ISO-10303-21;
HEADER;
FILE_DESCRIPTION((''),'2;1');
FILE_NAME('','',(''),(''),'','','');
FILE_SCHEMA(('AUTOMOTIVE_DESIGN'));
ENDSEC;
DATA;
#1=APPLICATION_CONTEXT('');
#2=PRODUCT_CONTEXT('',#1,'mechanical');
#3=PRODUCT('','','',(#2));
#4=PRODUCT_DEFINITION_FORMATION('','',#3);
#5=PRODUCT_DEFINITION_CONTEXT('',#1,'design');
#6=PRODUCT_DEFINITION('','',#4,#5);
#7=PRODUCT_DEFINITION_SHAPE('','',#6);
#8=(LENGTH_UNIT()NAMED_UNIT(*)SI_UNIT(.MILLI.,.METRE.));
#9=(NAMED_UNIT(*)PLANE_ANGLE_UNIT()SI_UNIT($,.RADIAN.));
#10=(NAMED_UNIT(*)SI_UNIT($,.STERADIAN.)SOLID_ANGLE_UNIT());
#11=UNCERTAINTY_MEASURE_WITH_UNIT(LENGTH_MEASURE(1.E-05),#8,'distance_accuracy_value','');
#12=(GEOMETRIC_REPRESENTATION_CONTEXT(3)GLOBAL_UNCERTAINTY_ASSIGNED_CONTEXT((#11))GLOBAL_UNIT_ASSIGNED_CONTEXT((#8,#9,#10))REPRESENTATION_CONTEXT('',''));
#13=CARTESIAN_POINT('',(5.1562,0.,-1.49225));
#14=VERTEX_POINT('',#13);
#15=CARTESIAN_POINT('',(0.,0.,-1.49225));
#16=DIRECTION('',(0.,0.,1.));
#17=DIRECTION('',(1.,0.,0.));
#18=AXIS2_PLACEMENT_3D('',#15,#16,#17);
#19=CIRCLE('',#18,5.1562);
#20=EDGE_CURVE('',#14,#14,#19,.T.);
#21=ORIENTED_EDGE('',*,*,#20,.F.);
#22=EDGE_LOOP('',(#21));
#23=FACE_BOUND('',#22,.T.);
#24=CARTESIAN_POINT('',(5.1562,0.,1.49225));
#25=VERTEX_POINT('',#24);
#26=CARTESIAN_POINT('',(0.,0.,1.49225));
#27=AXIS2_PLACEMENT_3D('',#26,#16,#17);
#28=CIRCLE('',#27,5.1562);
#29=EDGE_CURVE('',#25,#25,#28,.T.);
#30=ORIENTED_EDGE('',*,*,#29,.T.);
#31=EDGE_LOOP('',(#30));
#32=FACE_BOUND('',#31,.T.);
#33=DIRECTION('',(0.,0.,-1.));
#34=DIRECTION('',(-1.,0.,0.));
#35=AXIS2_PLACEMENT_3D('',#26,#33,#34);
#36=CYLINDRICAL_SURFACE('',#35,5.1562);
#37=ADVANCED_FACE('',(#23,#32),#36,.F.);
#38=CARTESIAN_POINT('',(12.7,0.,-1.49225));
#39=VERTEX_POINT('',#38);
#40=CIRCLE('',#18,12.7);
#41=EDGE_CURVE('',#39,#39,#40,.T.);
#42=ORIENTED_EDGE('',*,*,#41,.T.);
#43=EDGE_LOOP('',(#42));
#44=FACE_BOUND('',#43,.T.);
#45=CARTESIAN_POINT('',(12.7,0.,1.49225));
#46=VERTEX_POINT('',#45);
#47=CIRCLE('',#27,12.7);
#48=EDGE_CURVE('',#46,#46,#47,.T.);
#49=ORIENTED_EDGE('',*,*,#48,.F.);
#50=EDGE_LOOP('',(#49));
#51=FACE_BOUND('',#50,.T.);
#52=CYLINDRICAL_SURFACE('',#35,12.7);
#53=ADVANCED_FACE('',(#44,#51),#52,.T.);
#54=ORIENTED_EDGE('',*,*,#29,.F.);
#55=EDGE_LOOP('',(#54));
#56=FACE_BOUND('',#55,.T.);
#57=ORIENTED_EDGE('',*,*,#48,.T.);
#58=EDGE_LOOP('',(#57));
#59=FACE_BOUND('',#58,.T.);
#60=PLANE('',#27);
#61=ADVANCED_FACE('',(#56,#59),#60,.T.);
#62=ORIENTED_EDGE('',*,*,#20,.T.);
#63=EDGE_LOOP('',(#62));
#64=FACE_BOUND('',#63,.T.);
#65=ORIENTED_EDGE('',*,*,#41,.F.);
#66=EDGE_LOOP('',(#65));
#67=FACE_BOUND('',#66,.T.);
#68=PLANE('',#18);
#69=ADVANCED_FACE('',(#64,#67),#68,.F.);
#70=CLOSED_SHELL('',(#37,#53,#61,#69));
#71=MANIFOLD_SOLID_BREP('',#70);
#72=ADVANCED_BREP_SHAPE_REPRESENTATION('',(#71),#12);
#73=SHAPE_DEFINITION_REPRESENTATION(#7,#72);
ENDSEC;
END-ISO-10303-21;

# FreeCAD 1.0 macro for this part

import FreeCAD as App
import Part
import Sketcher
Q = App.Units.Quantity

doc = App.newDocument("Part")
body = doc.addObject("PartDesign::Body", "Body")

# Sketch on XY plane
sketch1 = body.newObject("Sketcher::SketchObject", "Sketch")
sketch1.AttachmentSupport = (doc.getObject("XY_Plane"), [""])
sketch1.MapMode = "FlatFace"
sketch1.addGeometry(Part.Circle(App.Vector(0, 0, 0), App.Vector(0, 0, 1), 13), False)
sketch1.addGeometry(Part.Circle(App.Vector(0, 0, 0), App.Vector(0, 0, 1), 5), False)
sketch1.addConstraint(Sketcher.Constraint("Coincident", 0, 3, -1, 1))
sketch1.addConstraint(Sketcher.Constraint("Coincident", 1, 3, -1, 1))
sketch1.addConstraint(Sketcher.Constraint("Diameter", 0, Q("1 in")))
sketch1.addConstraint(Sketcher.Constraint("Diameter", 1, Q("0.406 in")))
pad1 = body.newObject("PartDesign::Pad", "Pad")
pad1.Profile = sketch1
pad1.Length = Q("0.1175 in")
pad1.Midplane = True

doc.recompute()
